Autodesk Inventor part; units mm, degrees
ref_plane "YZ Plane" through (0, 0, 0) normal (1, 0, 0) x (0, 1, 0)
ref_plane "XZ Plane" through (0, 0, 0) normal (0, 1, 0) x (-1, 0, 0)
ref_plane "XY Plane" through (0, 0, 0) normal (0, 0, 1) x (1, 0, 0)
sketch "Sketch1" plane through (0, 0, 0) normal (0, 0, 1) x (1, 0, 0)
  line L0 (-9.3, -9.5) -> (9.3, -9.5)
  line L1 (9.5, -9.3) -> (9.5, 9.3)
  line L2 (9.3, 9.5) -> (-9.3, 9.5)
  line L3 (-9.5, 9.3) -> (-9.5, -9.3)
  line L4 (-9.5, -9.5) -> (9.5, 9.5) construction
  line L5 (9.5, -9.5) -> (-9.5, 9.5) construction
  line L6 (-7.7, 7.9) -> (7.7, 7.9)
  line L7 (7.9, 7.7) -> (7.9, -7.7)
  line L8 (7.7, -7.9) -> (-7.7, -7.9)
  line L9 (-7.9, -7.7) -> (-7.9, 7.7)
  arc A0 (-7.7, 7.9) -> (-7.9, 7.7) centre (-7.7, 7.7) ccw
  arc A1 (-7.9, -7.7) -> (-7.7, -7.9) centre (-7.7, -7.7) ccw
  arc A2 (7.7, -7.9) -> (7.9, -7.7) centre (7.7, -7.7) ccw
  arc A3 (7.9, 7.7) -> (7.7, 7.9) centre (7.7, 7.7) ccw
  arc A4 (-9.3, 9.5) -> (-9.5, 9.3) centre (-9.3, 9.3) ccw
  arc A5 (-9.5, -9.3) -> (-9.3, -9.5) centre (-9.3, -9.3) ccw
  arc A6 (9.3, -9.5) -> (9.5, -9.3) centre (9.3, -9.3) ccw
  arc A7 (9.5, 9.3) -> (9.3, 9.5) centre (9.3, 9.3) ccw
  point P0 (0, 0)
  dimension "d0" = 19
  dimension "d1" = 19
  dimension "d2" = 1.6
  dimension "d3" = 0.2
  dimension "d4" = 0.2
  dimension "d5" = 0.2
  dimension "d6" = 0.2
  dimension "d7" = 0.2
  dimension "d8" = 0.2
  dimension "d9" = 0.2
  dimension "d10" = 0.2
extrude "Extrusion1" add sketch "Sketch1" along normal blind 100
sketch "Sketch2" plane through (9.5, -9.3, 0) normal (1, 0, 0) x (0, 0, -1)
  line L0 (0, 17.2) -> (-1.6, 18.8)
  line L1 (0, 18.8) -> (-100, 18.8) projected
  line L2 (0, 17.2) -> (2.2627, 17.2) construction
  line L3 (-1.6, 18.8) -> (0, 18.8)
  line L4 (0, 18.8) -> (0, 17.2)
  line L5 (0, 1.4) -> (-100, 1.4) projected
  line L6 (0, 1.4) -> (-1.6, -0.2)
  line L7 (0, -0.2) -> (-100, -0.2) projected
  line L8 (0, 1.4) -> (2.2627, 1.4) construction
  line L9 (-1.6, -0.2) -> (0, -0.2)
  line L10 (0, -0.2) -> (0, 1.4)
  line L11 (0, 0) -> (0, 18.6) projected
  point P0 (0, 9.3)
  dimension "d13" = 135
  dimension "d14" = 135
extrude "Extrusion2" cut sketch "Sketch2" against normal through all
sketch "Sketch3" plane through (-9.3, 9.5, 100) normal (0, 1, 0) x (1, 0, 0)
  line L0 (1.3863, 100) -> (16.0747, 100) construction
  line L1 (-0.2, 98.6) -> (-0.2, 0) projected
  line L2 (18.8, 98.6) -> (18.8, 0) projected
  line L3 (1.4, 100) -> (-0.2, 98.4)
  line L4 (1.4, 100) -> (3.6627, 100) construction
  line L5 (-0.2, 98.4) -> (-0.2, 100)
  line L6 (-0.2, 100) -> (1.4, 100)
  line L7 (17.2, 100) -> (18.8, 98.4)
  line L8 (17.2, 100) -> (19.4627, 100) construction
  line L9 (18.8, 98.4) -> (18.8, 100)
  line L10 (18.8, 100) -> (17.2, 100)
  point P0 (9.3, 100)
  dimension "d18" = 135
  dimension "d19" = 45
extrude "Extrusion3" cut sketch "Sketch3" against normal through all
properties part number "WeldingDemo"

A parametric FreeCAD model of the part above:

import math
import FreeCAD as App
import Part
import Sketcher

V = App.Vector

doc = App.newDocument("Part")
body = doc.addObject("PartDesign::Body", "Body")

sketch1 = body.newObject("Sketcher::SketchObject", "Sketch")
sketch1.AttachmentSupport = (doc.getObject("XY_Plane"), [""])
sketch1.MapMode = "FlatFace"
sketch1.addGeometry([
    Part.ArcOfCircle(Part.Circle(V(-9.3, -9.3, 0), V(0, 0, 1), 0.2), math.radians(180), math.radians(270)),
    Part.LineSegment(V(-9.3, -9.5, 0), V(9.3, -9.5, 0)),
    Part.ArcOfCircle(Part.Circle(V(9.3, -9.3, 0), V(0, 0, 1), 0.2), math.radians(-90), math.radians(0)),
    Part.LineSegment(V(9.5, -9.3, 0), V(9.5, 9.3, 0)),
    Part.ArcOfCircle(Part.Circle(V(9.3, 9.3, 0), V(0, 0, 1), 0.2), math.radians(0), math.radians(90)),
    Part.LineSegment(V(9.3, 9.5, 0), V(-9.3, 9.5, 0)),
    Part.ArcOfCircle(Part.Circle(V(-9.3, 9.3, 0), V(0, 0, 1), 0.2), math.radians(90), math.radians(180)),
    Part.LineSegment(V(-9.5, 9.3, 0), V(-9.5, -9.3, 0)),
    Part.ArcOfCircle(Part.Circle(V(-7.7, 7.7, 0), V(0, 0, 1), 0.2), math.radians(90), math.radians(180)),
    Part.LineSegment(V(-7.7, 7.9, 0), V(7.7, 7.9, 0)),
    Part.ArcOfCircle(Part.Circle(V(7.7, 7.7, 0), V(0, 0, 1), 0.2), math.radians(0), math.radians(90)),
    Part.LineSegment(V(7.9, 7.7, 0), V(7.9, -7.7, 0)),
    Part.ArcOfCircle(Part.Circle(V(7.7, -7.7, 0), V(0, 0, 1), 0.2), math.radians(-90), math.radians(0)),
    Part.LineSegment(V(7.7, -7.9, 0), V(-7.7, -7.9, 0)),
    Part.ArcOfCircle(Part.Circle(V(-7.7, -7.7, 0), V(0, 0, 1), 0.2), math.radians(180), math.radians(270)),
    Part.LineSegment(V(-7.9, -7.7, 0), V(-7.9, 7.7, 0)),
], False)
sketch1.addConstraint([
    Sketcher.Constraint("Tangent", 0, 2, 1, 1),
    Sketcher.Constraint("Tangent", 1, 2, 2, 1),
    Sketcher.Constraint("Tangent", 2, 2, 3, 1),
    Sketcher.Constraint("Tangent", 3, 2, 4, 1),
    Sketcher.Constraint("Tangent", 4, 2, 5, 1),
    Sketcher.Constraint("Tangent", 5, 2, 6, 1),
    Sketcher.Constraint("Tangent", 6, 2, 7, 1),
    Sketcher.Constraint("Tangent", 7, 2, 0, 1),
    Sketcher.Constraint("Tangent", 8, 1, 9, 1),
    Sketcher.Constraint("Tangent", 9, 2, 10, 2),
    Sketcher.Constraint("Tangent", 10, 1, 11, 1),
    Sketcher.Constraint("Tangent", 11, 2, 12, 2),
    Sketcher.Constraint("Tangent", 12, 1, 13, 1),
    Sketcher.Constraint("Tangent", 13, 2, 14, 2),
    Sketcher.Constraint("Tangent", 14, 1, 15, 1),
    Sketcher.Constraint("Tangent", 15, 2, 8, 2),
    Sketcher.Constraint("Horizontal", 1),
    Sketcher.Constraint("Vertical", 3),
    Sketcher.Constraint("Horizontal", 5),
    Sketcher.Constraint("Vertical", 7),
    Sketcher.Constraint("Horizontal", 9),
    Sketcher.Constraint("Vertical", 11),
    Sketcher.Constraint("Horizontal", 13),
    Sketcher.Constraint("Vertical", 15),
    Sketcher.Constraint("Equal", 0, 2),
    Sketcher.Constraint("Equal", 2, 4),
    Sketcher.Constraint("Equal", 4, 6),
    Sketcher.Constraint("Equal", 6, 8),
    Sketcher.Constraint("Equal", 8, 10),
    Sketcher.Constraint("Equal", 10, 12),
    Sketcher.Constraint("Equal", 12, 14),
    Sketcher.Constraint("Symmetric", 0, 3, 4, 3, -1, 1),
    Sketcher.Constraint("Symmetric", 8, 3, 12, 3, -1, 1),
    Sketcher.Constraint("Equal", 5, 3),
    Sketcher.Constraint("Equal", 13, 11),
    Sketcher.Constraint("Radius", 0, 0.2),
    Sketcher.Constraint("DistanceX", 6, 3, 8, 3, 1.6),
    Sketcher.Constraint("DistanceX", 1, 1, 1, 2, 18.6),
])
pad1 = body.newObject("PartDesign::Pad", "Pad")
pad1.Profile = sketch1
pad1.Length = 100

sketch2 = body.newObject("Sketcher::SketchObject", "Sketch001")
sketch2.AttachmentSupport = (doc.getObject("YZ_Plane"), [""])
sketch2.MapMode = "FlatFace"
sketch2.AttachmentOffset = App.Placement(V(0, 0, 9.5), App.Rotation())
sketch2.addGeometry([
    Part.LineSegment(V(9.5, 1.6, 0), V(7.9, 0, 0)),
    Part.LineSegment(V(7.9, 0, 0), V(9.5, 0, 0)),
    Part.LineSegment(V(9.5, 0, 0), V(9.5, 1.6, 0)),
    Part.LineSegment(V(-9.5, 0, 0), V(-7.9, 0, 0)),
    Part.LineSegment(V(-7.9, 0, 0), V(-9.5, 1.6, 0)),
    Part.LineSegment(V(-9.5, 1.6, 0), V(-9.5, 0, 0)),
], False)
sketch2.addConstraint([
    Sketcher.Constraint("Coincident", 0, 2, 1, 1),
    Sketcher.Constraint("Coincident", 1, 2, 2, 1),
    Sketcher.Constraint("Coincident", 2, 2, 0, 1),
    Sketcher.Constraint("Coincident", 3, 2, 4, 1),
    Sketcher.Constraint("Coincident", 4, 2, 5, 1),
    Sketcher.Constraint("Coincident", 5, 2, 3, 1),
    Sketcher.Constraint("Horizontal", 1),
    Sketcher.Constraint("Vertical", 2),
    Sketcher.Constraint("Horizontal", 3),
    Sketcher.Constraint("Vertical", 5),
    Sketcher.Constraint("Symmetric", 0, 2, 3, 2, -1, 1),
    Sketcher.Constraint("Symmetric", 2, 2, 4, 2, -2),
    Sketcher.Constraint("PointOnObject", 0, 2, -1),
    Sketcher.Constraint("Perpendicular", 0, 4),
    Sketcher.Constraint("DistanceX", 1, 1, 1, 2, 1.6),
    Sketcher.Constraint("DistanceX", 4, 2, 2, 2, 19.0),
])
pocket1 = body.newObject("PartDesign::Pocket", "Pocket")
pocket1.Profile = sketch2
pocket1.Type = "ThroughAll"

sketch3 = body.newObject("Sketcher::SketchObject", "Sketch002")
sketch3.AttachmentSupport = (doc.getObject("XZ_Plane"), [""])
sketch3.MapMode = "FlatFace"
sketch3.AttachmentOffset = App.Placement(V(0, 0, -9.5), App.Rotation())
sketch3.addGeometry([
    Part.LineSegment(V(-9.5, 0, 0), V(-9.5, 1.6, 0)),
    Part.LineSegment(V(-9.5, 1.6, 0), V(-7.9, 0, 0)),
    Part.LineSegment(V(-7.9, 0, 0), V(-9.5, 0, 0)),
    Part.LineSegment(V(9.5, 1.6, 0), V(9.5, 0, 0)),
    Part.LineSegment(V(9.5, 0, 0), V(7.9, 0, 0)),
    Part.LineSegment(V(7.9, 0, 0), V(9.5, 1.6, 0)),
], False)
sketch3.addConstraint([
    Sketcher.Constraint("Coincident", 0, 2, 1, 1),
    Sketcher.Constraint("Coincident", 1, 2, 2, 1),
    Sketcher.Constraint("Coincident", 2, 2, 0, 1),
    Sketcher.Constraint("Coincident", 3, 2, 4, 1),
    Sketcher.Constraint("Coincident", 4, 2, 5, 1),
    Sketcher.Constraint("Coincident", 5, 2, 3, 1),
    Sketcher.Constraint("Vertical", 0),
    Sketcher.Constraint("Horizontal", 2),
    Sketcher.Constraint("Vertical", 3),
    Sketcher.Constraint("Horizontal", 4),
    Sketcher.Constraint("Symmetric", 2, 2, 3, 2, -1, 1),
    Sketcher.Constraint("Symmetric", 1, 2, 4, 2, -2),
    Sketcher.Constraint("Perpendicular", 1, 5),
    Sketcher.Constraint("Horizontal", 0, 2, 5, 2),
    Sketcher.Constraint("DistanceX", 2, 2, 2, 1, 1.6),
    Sketcher.Constraint("DistanceX", 2, 2, 3, 2, 19.0),
])
pocket2 = body.newObject("PartDesign::Pocket", "Pocket001")
pocket2.Profile = sketch3
pocket2.Type = "ThroughAll"
pocket2.Reversed = True

doc.recompute()
